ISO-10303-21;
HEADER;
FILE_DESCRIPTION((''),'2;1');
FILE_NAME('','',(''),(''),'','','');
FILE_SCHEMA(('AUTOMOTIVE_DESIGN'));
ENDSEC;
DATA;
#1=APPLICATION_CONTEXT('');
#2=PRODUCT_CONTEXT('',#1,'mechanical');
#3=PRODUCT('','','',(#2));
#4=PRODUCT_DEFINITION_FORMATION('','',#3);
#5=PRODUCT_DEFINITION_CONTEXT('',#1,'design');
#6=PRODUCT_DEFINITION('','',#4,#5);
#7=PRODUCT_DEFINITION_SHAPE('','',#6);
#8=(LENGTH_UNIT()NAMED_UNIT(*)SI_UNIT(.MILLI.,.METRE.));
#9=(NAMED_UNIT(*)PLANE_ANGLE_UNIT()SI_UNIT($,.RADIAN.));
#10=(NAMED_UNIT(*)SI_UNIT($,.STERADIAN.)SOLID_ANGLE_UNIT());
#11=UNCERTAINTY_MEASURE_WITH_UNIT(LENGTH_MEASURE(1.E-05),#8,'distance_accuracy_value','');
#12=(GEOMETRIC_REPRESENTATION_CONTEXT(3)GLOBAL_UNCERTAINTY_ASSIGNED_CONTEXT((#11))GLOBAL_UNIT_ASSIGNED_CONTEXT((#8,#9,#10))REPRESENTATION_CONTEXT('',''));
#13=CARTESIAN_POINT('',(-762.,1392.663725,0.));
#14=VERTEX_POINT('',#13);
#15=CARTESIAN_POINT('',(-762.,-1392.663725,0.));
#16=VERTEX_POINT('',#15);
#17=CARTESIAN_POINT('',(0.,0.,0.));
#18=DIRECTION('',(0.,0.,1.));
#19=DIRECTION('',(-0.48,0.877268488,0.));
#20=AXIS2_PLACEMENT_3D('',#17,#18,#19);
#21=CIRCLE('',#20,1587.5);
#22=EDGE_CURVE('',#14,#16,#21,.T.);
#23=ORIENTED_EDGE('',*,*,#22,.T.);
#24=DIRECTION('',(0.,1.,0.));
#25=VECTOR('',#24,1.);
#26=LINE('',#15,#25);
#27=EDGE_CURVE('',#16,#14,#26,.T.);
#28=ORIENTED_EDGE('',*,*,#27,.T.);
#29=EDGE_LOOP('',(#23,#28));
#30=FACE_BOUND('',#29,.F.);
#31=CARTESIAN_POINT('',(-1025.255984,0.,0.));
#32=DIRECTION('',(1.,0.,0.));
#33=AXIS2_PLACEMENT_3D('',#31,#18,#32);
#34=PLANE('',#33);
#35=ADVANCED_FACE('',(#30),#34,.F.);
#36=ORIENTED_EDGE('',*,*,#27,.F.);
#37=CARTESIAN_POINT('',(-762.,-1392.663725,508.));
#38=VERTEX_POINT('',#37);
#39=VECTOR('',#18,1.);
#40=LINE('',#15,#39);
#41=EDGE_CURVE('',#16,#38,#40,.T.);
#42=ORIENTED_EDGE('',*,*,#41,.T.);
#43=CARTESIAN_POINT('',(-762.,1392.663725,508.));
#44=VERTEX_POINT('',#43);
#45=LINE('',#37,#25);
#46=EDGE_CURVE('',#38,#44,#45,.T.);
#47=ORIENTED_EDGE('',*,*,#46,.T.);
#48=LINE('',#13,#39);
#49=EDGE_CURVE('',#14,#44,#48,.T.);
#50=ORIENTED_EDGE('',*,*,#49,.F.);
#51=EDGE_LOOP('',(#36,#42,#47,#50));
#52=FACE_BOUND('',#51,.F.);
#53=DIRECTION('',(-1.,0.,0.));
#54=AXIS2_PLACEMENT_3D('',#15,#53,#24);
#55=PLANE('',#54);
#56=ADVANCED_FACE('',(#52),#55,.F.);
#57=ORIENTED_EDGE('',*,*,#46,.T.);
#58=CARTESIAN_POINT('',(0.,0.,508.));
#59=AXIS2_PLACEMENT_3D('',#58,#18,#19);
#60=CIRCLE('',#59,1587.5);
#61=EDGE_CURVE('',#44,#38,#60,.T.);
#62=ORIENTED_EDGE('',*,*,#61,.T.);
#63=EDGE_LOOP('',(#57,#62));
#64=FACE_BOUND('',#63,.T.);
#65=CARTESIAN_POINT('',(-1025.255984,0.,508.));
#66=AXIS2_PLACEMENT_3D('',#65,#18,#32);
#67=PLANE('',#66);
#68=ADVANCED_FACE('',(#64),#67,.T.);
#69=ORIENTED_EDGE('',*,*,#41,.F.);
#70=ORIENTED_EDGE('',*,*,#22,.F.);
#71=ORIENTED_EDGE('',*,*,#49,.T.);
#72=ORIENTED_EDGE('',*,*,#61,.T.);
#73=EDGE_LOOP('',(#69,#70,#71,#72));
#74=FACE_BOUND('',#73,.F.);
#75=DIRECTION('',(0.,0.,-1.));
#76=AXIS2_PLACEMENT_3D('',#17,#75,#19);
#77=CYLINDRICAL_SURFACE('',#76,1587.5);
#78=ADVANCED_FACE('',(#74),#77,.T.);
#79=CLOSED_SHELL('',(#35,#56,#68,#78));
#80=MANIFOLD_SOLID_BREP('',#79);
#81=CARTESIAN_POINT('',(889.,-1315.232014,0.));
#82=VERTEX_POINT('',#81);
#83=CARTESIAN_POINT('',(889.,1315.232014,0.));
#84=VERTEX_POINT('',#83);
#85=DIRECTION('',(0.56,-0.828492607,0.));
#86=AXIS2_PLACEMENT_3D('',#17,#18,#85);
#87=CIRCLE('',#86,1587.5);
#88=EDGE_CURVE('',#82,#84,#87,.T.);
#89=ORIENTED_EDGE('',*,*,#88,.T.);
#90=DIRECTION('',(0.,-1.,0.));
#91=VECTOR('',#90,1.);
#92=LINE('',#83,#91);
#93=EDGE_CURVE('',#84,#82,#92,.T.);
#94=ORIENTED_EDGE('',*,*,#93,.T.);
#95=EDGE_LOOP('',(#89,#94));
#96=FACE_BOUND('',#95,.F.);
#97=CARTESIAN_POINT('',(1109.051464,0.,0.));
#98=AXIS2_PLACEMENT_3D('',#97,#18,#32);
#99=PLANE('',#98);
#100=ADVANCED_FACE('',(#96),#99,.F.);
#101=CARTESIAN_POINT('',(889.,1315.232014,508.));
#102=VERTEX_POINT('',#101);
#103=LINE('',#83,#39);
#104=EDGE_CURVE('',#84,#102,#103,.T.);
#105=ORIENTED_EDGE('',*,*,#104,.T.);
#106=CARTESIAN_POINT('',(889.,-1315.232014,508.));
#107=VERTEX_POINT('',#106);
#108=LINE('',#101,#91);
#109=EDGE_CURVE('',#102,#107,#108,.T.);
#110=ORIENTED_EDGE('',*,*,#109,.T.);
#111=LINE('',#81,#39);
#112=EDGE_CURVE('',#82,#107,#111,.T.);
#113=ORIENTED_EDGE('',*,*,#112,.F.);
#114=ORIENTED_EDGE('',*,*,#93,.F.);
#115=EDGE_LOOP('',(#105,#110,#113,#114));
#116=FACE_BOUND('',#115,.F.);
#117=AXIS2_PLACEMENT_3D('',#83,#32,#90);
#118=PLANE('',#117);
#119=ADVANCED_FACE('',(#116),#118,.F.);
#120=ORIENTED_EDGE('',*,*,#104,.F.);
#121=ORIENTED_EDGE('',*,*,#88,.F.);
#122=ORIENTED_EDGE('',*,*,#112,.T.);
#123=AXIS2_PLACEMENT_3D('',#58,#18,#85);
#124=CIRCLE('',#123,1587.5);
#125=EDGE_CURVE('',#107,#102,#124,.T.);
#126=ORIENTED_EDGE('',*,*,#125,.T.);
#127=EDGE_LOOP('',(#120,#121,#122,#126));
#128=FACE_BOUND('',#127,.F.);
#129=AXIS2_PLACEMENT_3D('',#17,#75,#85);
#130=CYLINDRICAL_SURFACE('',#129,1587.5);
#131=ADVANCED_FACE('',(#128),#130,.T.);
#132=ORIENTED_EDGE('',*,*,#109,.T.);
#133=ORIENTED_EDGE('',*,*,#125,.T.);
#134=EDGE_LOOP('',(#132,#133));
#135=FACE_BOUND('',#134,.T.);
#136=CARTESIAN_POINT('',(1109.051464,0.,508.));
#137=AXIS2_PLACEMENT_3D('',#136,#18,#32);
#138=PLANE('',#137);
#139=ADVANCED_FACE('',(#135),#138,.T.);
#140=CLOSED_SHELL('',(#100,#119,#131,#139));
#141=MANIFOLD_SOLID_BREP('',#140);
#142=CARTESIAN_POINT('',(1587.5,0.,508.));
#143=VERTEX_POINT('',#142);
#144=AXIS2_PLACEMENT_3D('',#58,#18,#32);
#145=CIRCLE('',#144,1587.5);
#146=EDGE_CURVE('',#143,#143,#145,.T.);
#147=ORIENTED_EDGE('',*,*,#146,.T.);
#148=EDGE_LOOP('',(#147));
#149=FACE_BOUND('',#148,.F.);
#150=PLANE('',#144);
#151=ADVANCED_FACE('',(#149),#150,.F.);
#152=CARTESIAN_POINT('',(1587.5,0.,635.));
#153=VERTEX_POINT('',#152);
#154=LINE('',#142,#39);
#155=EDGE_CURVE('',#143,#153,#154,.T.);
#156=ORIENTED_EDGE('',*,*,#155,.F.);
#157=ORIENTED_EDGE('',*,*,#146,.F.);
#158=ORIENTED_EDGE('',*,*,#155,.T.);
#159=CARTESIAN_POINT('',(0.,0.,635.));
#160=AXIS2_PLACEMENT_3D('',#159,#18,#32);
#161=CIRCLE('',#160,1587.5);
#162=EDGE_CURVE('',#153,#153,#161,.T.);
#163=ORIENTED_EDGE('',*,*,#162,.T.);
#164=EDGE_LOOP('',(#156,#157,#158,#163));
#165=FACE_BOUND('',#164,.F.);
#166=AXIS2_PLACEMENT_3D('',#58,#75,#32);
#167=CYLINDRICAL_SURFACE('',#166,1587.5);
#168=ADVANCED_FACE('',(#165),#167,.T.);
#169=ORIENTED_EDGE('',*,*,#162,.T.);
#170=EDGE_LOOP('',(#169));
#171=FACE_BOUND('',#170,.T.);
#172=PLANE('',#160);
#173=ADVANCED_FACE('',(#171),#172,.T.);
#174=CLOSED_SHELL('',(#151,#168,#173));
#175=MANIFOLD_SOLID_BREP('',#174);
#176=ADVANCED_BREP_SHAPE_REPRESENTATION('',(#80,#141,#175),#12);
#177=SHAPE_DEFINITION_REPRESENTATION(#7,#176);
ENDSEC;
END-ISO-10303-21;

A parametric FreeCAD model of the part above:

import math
import FreeCAD as App
import Part
import Sketcher
Q = App.Units.Quantity

doc = App.newDocument("Part")
params = doc.addObject("Spreadsheet::Sheet", "Params")
for row, (alias, value) in enumerate([
    ("sketch1_radius", "62.5 in"),
    ("pad1_length", "20 in"),
    ("sketch2_radius", "62.5 in"),
    ("pad2_length", "20 in"),
    ("sketch3_diameter", "125 in"),
    ("pad3_length", "5 in"),
], start=1):
    params.set(f"A{row}", alias)
    params.set(f"B{row}", "=" + value)
    params.setAlias(f"B{row}", alias)

body = doc.addObject("PartDesign::Body", "Body")

sketch1 = body.newObject("Sketcher::SketchObject", "Sketch")
sketch1.AttachmentSupport = (doc.getObject("XY_Plane"), [""])
sketch1.MapMode = "FlatFace"
sketch1.addGeometry(Part.LineSegment(App.Vector(-762, -1393, 0), App.Vector(-762, 1393, 0)), False)
sketch1.addGeometry(Part.ArcOfCircle(Part.Circle(App.Vector(0, 0, 0), App.Vector(0, 0, 1), 1588), math.radians(119), math.radians(241)), False)
sketch1.addConstraint(Sketcher.Constraint("Coincident", 0, 1, 1, 2))
sketch1.addConstraint(Sketcher.Constraint("Coincident", 1, 1, 0, 2))
sketch1.addConstraint(Sketcher.Constraint("Vertical", 0))
sketch1.addConstraint(Sketcher.Constraint("Coincident", 1, 3, -1, 1))
sketch1.addConstraint(Sketcher.Constraint("Radius", 1, Q("62.5 in")))
sketch1.addConstraint(Sketcher.Constraint("DistanceX", 0, 1, -1, 1, Q("30 in")))
sketch1.setExpression("Constraints[4]", "Params.sketch1_radius")
pad1 = body.newObject("PartDesign::Pad", "Pad")
pad1.Profile = sketch1
pad1.setExpression("Length", "Params.pad1_length")
body2 = doc.addObject("PartDesign::Body", "Body001")

sketch2 = body2.newObject("Sketcher::SketchObject", "Sketch001")
sketch2.AttachmentSupport = (doc.getObject("XY_Plane001"), [""])
sketch2.MapMode = "FlatFace"
sketch2.addGeometry(Part.ArcOfCircle(Part.Circle(App.Vector(0, 0, 0), App.Vector(0, 0, 1), 1588), math.radians(-56), math.radians(56)), False)
sketch2.addGeometry(Part.LineSegment(App.Vector(889, 1315, 0), App.Vector(889, -1315, 0)), False)
sketch2.addConstraint(Sketcher.Constraint("Coincident", 0, 1, 1, 2))
sketch2.addConstraint(Sketcher.Constraint("Coincident", 1, 1, 0, 2))
sketch2.addConstraint(Sketcher.Constraint("Vertical", 1))
sketch2.addConstraint(Sketcher.Constraint("Coincident", 0, 3, -1, 1))
sketch2.addConstraint(Sketcher.Constraint("Radius", 0, Q("62.5 in")))
sketch2.addConstraint(Sketcher.Constraint("DistanceX", -1, 1, 1, 1, Q("35 in")))
sketch2.setExpression("Constraints[4]", "Params.sketch2_radius")
pad2 = body2.newObject("PartDesign::Pad", "Pad001")
pad2.Profile = sketch2
pad2.setExpression("Length", "Params.pad2_length")
body3 = doc.addObject("PartDesign::Body", "Body002")

sketch3 = body3.newObject("Sketcher::SketchObject", "Sketch002")
sketch3.AttachmentSupport = (doc.getObject("XY_Plane002"), [""])
sketch3.MapMode = "FlatFace"
sketch3.AttachmentOffset = App.Placement(App.Vector(0, 0, 20 * 25.4), App.Rotation())
sketch3.addGeometry(Part.Circle(App.Vector(0, 0, 0), App.Vector(0, 0, 1), 1588), False)
sketch3.addConstraint(Sketcher.Constraint("Coincident", 0, 3, -1, 1))
sketch3.addConstraint(Sketcher.Constraint("Diameter", 0, Q("125 in")))
sketch3.setExpression("Constraints[1]", "Params.sketch3_diameter")
pad3 = body3.newObject("PartDesign::Pad", "Pad002")
pad3.Profile = sketch3
pad3.setExpression("Length", "Params.pad3_length")

doc.recompute()
